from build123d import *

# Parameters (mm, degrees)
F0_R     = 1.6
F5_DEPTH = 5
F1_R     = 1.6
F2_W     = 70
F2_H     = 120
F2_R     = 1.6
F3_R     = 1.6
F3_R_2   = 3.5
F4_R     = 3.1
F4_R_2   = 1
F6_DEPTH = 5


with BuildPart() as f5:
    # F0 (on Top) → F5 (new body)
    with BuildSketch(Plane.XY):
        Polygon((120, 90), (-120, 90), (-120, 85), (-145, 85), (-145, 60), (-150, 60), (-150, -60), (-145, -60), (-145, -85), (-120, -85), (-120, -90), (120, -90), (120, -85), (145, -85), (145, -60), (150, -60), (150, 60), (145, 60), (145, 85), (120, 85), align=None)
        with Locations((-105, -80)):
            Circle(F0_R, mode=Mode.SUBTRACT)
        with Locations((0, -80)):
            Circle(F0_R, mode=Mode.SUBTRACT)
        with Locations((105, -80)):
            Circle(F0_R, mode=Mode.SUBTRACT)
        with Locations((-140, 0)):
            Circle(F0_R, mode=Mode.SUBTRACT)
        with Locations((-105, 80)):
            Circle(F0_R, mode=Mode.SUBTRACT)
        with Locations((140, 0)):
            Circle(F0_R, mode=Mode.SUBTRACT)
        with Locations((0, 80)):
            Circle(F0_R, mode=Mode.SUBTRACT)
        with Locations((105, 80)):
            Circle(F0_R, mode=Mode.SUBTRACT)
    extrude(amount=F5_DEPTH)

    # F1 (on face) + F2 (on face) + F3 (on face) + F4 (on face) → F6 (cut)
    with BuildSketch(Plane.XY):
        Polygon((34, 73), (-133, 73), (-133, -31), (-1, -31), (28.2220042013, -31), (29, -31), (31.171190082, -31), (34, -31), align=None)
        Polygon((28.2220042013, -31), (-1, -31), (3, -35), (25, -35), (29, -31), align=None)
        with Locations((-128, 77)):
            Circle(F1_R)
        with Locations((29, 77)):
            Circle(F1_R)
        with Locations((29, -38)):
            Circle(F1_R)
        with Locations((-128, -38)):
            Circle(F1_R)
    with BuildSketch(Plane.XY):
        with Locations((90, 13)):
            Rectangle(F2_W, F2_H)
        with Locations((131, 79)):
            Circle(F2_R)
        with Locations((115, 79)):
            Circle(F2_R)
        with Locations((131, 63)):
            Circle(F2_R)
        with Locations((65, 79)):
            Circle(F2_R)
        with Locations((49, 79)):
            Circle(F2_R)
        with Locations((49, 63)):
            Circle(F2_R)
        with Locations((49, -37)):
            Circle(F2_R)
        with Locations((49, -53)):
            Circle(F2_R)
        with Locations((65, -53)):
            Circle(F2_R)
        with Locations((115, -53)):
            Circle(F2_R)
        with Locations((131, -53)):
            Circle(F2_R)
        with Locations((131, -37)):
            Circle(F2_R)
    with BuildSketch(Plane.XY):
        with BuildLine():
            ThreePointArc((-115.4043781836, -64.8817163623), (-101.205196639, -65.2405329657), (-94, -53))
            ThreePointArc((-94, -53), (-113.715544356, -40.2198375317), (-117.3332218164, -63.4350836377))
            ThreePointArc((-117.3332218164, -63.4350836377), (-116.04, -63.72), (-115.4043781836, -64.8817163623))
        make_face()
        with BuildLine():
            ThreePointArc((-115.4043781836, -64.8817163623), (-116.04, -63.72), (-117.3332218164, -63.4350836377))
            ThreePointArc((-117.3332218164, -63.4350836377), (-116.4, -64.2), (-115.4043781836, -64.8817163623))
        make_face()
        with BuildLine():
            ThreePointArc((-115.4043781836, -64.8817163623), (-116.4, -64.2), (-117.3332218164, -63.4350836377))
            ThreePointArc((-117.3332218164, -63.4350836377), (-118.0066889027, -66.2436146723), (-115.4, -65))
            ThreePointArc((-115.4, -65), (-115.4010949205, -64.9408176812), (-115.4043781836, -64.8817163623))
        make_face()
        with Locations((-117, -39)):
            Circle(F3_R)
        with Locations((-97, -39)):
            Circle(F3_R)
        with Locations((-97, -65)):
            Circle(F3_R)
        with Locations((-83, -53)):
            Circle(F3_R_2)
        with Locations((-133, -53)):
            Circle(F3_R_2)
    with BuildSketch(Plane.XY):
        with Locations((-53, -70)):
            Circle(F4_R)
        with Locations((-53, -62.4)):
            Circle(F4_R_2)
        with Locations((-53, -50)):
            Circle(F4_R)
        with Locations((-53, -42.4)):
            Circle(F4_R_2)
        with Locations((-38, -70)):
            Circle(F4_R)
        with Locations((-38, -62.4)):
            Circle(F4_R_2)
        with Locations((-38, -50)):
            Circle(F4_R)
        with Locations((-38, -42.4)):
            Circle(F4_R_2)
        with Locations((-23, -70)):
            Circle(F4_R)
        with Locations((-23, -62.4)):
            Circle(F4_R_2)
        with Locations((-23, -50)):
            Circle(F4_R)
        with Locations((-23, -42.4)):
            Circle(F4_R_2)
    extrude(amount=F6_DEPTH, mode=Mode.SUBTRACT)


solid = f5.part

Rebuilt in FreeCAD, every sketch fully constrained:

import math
import FreeCAD as App
import Part
import Sketcher
Q = App.Units.Quantity


def add_polygon(sketch, points):
    """Adds a closed chain of lines whose ends are joined by coincident constraints."""
    first, n = sketch.GeometryCount, len(points)
    for a, b in zip(points, points[1:] + points[:1]):
        sketch.addGeometry(Part.LineSegment(App.Vector(*a, 0), App.Vector(*b, 0)), False)
    for i in range(n):
        sketch.addConstraint(Sketcher.Constraint("Coincident", first + i, 2, first + (i + 1) % n, 1))

doc = App.newDocument("Part")
body = doc.addObject("PartDesign::Body", "Body")

sketch1 = body.newObject("Sketcher::SketchObject", "Sketch")
sketch1.AttachmentSupport = (doc.getObject("XY_Plane"), [""])
sketch1.MapMode = "FlatFace"
add_polygon(sketch1, [(120, 90), (-120, 90), (-120, 85), (-145, 85), (-145, 60), (-150, 60), (-150, -60), (-145, -60), (-145, -85), (-120, -85), (-120, -90), (120, -90), (120, -85), (145, -85), (145, -60), (150, -60), (150, 60), (145, 60), (145, 85), (120, 85)])
sketch1.addGeometry(Part.Circle(App.Vector(-105, -80, 0), App.Vector(0, 0, 1), 1.6), False)
sketch1.addGeometry(Part.Circle(App.Vector(0, -80, 0), App.Vector(0, 0, 1), 1.6), False)
sketch1.addGeometry(Part.Circle(App.Vector(105, -80, 0), App.Vector(0, 0, 1), 1.6), False)
sketch1.addGeometry(Part.Circle(App.Vector(-140, 0, 0), App.Vector(0, 0, 1), 1.6), False)
sketch1.addGeometry(Part.Circle(App.Vector(-105, 80, 0), App.Vector(0, 0, 1), 1.6), False)
sketch1.addGeometry(Part.Circle(App.Vector(140, 0, 0), App.Vector(0, 0, 1), 1.6), False)
sketch1.addGeometry(Part.Circle(App.Vector(0, 80, 0), App.Vector(0, 0, 1), 1.6), False)
sketch1.addGeometry(Part.Circle(App.Vector(105, 80, 0), App.Vector(0, 0, 1), 1.6), False)
sketch1.addConstraint([
    Sketcher.Constraint("Horizontal", 0),
    Sketcher.Constraint("Vertical", 1),
    Sketcher.Constraint("Horizontal", 2),
    Sketcher.Constraint("Vertical", 3),
    Sketcher.Constraint("Horizontal", 4),
    Sketcher.Constraint("Vertical", 5),
    Sketcher.Constraint("Horizontal", 6),
    Sketcher.Constraint("Vertical", 7),
    Sketcher.Constraint("Horizontal", 8),
    Sketcher.Constraint("Vertical", 9),
    Sketcher.Constraint("Horizontal", 10),
    Sketcher.Constraint("Vertical", 11),
    Sketcher.Constraint("Horizontal", 12),
    Sketcher.Constraint("Vertical", 13),
    Sketcher.Constraint("Horizontal", 14),
    Sketcher.Constraint("Vertical", 15),
    Sketcher.Constraint("Horizontal", 16),
    Sketcher.Constraint("Vertical", 17),
    Sketcher.Constraint("Horizontal", 18),
    Sketcher.Constraint("Vertical", 19),
    Sketcher.Constraint("Equal", 20, 21),
    Sketcher.Constraint("Equal", 21, 22),
    Sketcher.Constraint("Equal", 22, 23),
    Sketcher.Constraint("Equal", 23, 24),
    Sketcher.Constraint("Equal", 24, 25),
    Sketcher.Constraint("Equal", 25, 26),
    Sketcher.Constraint("Equal", 26, 27),
    Sketcher.Constraint("Symmetric", 22, 3, 24, 3, -1, 1),
    Sketcher.Constraint("Symmetric", 23, 3, 25, 3, -1, 1),
    Sketcher.Constraint("Symmetric", 21, 3, 26, 3, -1, 1),
    Sketcher.Constraint("Symmetric", 20, 3, 27, 3, -1, 1),
    Sketcher.Constraint("Symmetric", 0, 2, 10, 2, -1, 1),
    Sketcher.Constraint("Symmetric", 2, 2, 12, 2, -1, 1),
    Sketcher.Constraint("Symmetric", 4, 2, 14, 2, -1, 1),
    Sketcher.Constraint("Symmetric", 6, 2, 16, 2, -1, 1),
    Sketcher.Constraint("Symmetric", 8, 2, 18, 2, -1, 1),
    Sketcher.Constraint("Symmetric", 20, 3, 22, 3, -2),
    Sketcher.Constraint("Symmetric", 8, 2, 11, 2, -2),
    Sketcher.Constraint("Symmetric", 6, 2, 13, 2, -2),
    Sketcher.Constraint("PointOnObject", 21, 3, -2),
    Sketcher.Constraint("PointOnObject", 23, 3, -1),
    Sketcher.Constraint("Horizontal", 20, 3, 21, 3),
    Sketcher.Constraint("Equal", 16, 1),
    Sketcher.Constraint("Equal", 18, 3),
    Sketcher.Constraint("Diameter", 20, Q("3.2 mm")),
    Sketcher.Constraint("DistanceX", 0, 2, 0, 1, Q("240 mm")),
    Sketcher.Constraint("DistanceX", 2, 2, 2, 1, Q("25 mm")),
    Sketcher.Constraint("DistanceX", 4, 2, 4, 1, Q("5 mm")),
    Sketcher.Constraint("DistanceY", 5, 2, 5, 1, Q("120 mm")),
    Sketcher.Constraint("DistanceX", 20, 3, -1, 1, Q("105 mm")),
    Sketcher.Constraint("DistanceY", 20, 3, -1, 1, Q("80 mm")),
    Sketcher.Constraint("DistanceX", 23, 3, -1, 1, Q("140 mm")),
])
pad1 = body.newObject("PartDesign::Pad", "Pad")
pad1.Profile = sketch1
pad1.Length = 5

sketch2 = body.newObject("Sketcher::SketchObject", "Sketch001")
sketch2.AttachmentSupport = (doc.getObject("XY_Plane"), [""])
sketch2.MapMode = "FlatFace"
add_polygon(sketch2, [(34, 73), (-133, 73), (-133, -31), (-1, -31), (3, -35), (25, -35), (29, -31), (34, -31)])
sketch2.addGeometry(Part.Circle(App.Vector(-128, 77, 0), App.Vector(0, 0, 1), 1.6), False)
sketch2.addGeometry(Part.Circle(App.Vector(29, 77, 0), App.Vector(0, 0, 1), 1.6), False)
sketch2.addGeometry(Part.Circle(App.Vector(29, -38, 0), App.Vector(0, 0, 1), 1.6), False)
sketch2.addGeometry(Part.Circle(App.Vector(-128, -38, 0), App.Vector(0, 0, 1), 1.6), False)
add_polygon(sketch2, [(55, 73), (55, -47), (125, -47), (125, 73)])
sketch2.addGeometry(Part.Circle(App.Vector(131, 79, 0), App.Vector(0, 0, 1), 1.6), False)
sketch2.addGeometry(Part.Circle(App.Vector(115, 79, 0), App.Vector(0, 0, 1), 1.6), False)
sketch2.addGeometry(Part.Circle(App.Vector(131, 63, 0), App.Vector(0, 0, 1), 1.6), False)
sketch2.addGeometry(Part.Circle(App.Vector(65, 79, 0), App.Vector(0, 0, 1), 1.6), False)
sketch2.addGeometry(Part.Circle(App.Vector(49, 79, 0), App.Vector(0, 0, 1), 1.6), False)
sketch2.addGeometry(Part.Circle(App.Vector(49, 63, 0), App.Vector(0, 0, 1), 1.6), False)
sketch2.addGeometry(Part.Circle(App.Vector(49, -37, 0), App.Vector(0, 0, 1), 1.6), False)
sketch2.addGeometry(Part.Circle(App.Vector(49, -53, 0), App.Vector(0, 0, 1), 1.6), False)
sketch2.addGeometry(Part.Circle(App.Vector(65, -53, 0), App.Vector(0, 0, 1), 1.6), False)
sketch2.addGeometry(Part.Circle(App.Vector(115, -53, 0), App.Vector(0, 0, 1), 1.6), False)
sketch2.addGeometry(Part.Circle(App.Vector(131, -53, 0), App.Vector(0, 0, 1), 1.6), False)
sketch2.addGeometry(Part.Circle(App.Vector(131, -37, 0), App.Vector(0, 0, 1), 1.6), False)
sketch2.addGeometry(Part.ArcOfCircle(Part.Circle(App.Vector(-108, -53, 0), App.Vector(0, 0, 1), 14), math.radians(0), math.radians(228)), False)
sketch2.addGeometry(Part.ArcOfCircle(Part.Circle(App.Vector(-117, -65, 0), App.Vector(0, 0, 1), 1.6), math.radians(102), math.radians(360)), False)
sketch2.addGeometry(Part.ArcOfCircle(Part.Circle(App.Vector(-117, -65, 0), App.Vector(0, 0, 1), 1.6), math.radians(0), math.radians(4.24)), False)
sketch2.addGeometry(Part.ArcOfCircle(Part.Circle(App.Vector(-108, -53, 0), App.Vector(0, 0, 1), 14), math.radians(-122), math.radians(0)), False)
sketch2.addGeometry(Part.Circle(App.Vector(-117, -39, 0), App.Vector(0, 0, 1), 1.6), False)
sketch2.addGeometry(Part.Circle(App.Vector(-97, -39, 0), App.Vector(0, 0, 1), 1.6), False)
sketch2.addGeometry(Part.Circle(App.Vector(-97, -65, 0), App.Vector(0, 0, 1), 1.6), False)
sketch2.addGeometry(Part.Circle(App.Vector(-83, -53, 0), App.Vector(0, 0, 1), 3.5), False)
sketch2.addGeometry(Part.Circle(App.Vector(-133, -53, 0), App.Vector(0, 0, 1), 3.5), False)
sketch2.addGeometry(Part.Circle(App.Vector(-53, -70, 0), App.Vector(0, 0, 1), 3.1), False)
sketch2.addGeometry(Part.Circle(App.Vector(-53, -62.4, 0), App.Vector(0, 0, 1), 1), False)
sketch2.addGeometry(Part.Circle(App.Vector(-53, -50, 0), App.Vector(0, 0, 1), 3.1), False)
sketch2.addGeometry(Part.Circle(App.Vector(-53, -42.4, 0), App.Vector(0, 0, 1), 1), False)
sketch2.addGeometry(Part.Circle(App.Vector(-38, -70, 0), App.Vector(0, 0, 1), 3.1), False)
sketch2.addGeometry(Part.Circle(App.Vector(-38, -62.4, 0), App.Vector(0, 0, 1), 1), False)
sketch2.addGeometry(Part.Circle(App.Vector(-38, -50, 0), App.Vector(0, 0, 1), 3.1), False)
sketch2.addGeometry(Part.Circle(App.Vector(-38, -42.4, 0), App.Vector(0, 0, 1), 1), False)
sketch2.addGeometry(Part.Circle(App.Vector(-23, -70, 0), App.Vector(0, 0, 1), 3.1), False)
sketch2.addGeometry(Part.Circle(App.Vector(-23, -62.4, 0), App.Vector(0, 0, 1), 1), False)
sketch2.addGeometry(Part.Circle(App.Vector(-23, -50, 0), App.Vector(0, 0, 1), 3.1), False)
sketch2.addGeometry(Part.Circle(App.Vector(-23, -42.4, 0), App.Vector(0, 0, 1), 1), False)
sketch2.addConstraint([
    Sketcher.Constraint("Coincident", 28, 2, 29, 1),
    Sketcher.Constraint("Tangent", 29, 2, 30, 1),
    Sketcher.Constraint("Coincident", 30, 2, 31, 1),
    Sketcher.Constraint("Tangent", 31, 2, 28, 1),
    Sketcher.Constraint("Horizontal", 0),
    Sketcher.Constraint("Vertical", 1),
    Sketcher.Constraint("Horizontal", 2),
    Sketcher.Constraint("Horizontal", 4),
    Sketcher.Constraint("Horizontal", 6),
    Sketcher.Constraint("Vertical", 7),
    Sketcher.Constraint("Vertical", 12),
    Sketcher.Constraint("Horizontal", 13),
    Sketcher.Constraint("Vertical", 14),
    Sketcher.Constraint("Horizontal", 15),
    Sketcher.Constraint("Equal", 8, 9),
    Sketcher.Constraint("Equal", 9, 10),
    Sketcher.Constraint("Equal", 10, 11),
    Sketcher.Constraint("Equal", 11, 16),
    Sketcher.Constraint("Equal", 16, 17),
    Sketcher.Constraint("Equal", 17, 18),
    Sketcher.Constraint("Equal", 18, 19),
    Sketcher.Constraint("Equal", 19, 20),
    Sketcher.Constraint("Equal", 20, 21),
    Sketcher.Constraint("Equal", 21, 22),
    Sketcher.Constraint("Equal", 22, 23),
    Sketcher.Constraint("Equal", 23, 24),
    Sketcher.Constraint("Equal", 24, 25),
    Sketcher.Constraint("Equal", 25, 26),
    Sketcher.Constraint("Equal", 26, 27),
    Sketcher.Constraint("Equal", 27, 29),
    Sketcher.Constraint("Equal", 29, 30),
    Sketcher.Constraint("Equal", 28, 31),
    Sketcher.Constraint("Equal", 30, 32),
    Sketcher.Constraint("Equal", 32, 33),
    Sketcher.Constraint("Equal", 33, 34),
    Sketcher.Constraint("Equal", 35, 36),
    Sketcher.Constraint("Equal", 37, 39),
    Sketcher.Constraint("Equal", 38, 40),
    Sketcher.Constraint("Equal", 39, 41),
    Sketcher.Constraint("Equal", 40, 42),
    Sketcher.Constraint("Equal", 41, 43),
    Sketcher.Constraint("Equal", 42, 44),
    Sketcher.Constraint("Equal", 43, 45),
    Sketcher.Constraint("Equal", 44, 46),
    Sketcher.Constraint("Equal", 45, 47),
    Sketcher.Constraint("Equal", 46, 48),
    Sketcher.Constraint("Perpendicular", 3, 5),
    Sketcher.Constraint("Horizontal", 8, 3, 9, 3),
    Sketcher.Constraint("Horizontal", 10, 3, 11, 3),
    Sketcher.Constraint("Horizontal", 16, 3, 17, 3),
    Sketcher.Constraint("Horizontal", 17, 3, 19, 3),
    Sketcher.Constraint("Horizontal", 19, 3, 20, 3),
    Sketcher.Constraint("Horizontal", 18, 3, 21, 3),
    Sketcher.Constraint("Horizontal", 23, 3, 24, 3),
    Sketcher.Constraint("Horizontal", 24, 3, 25, 3),
    Sketcher.Constraint("Horizontal", 25, 3, 26, 3),
    Sketcher.Constraint("Horizontal", 22, 3, 27, 3),
    Sketcher.Constraint("Horizontal", 26, 3, 28, 3),
    Sketcher.Constraint("Horizontal", 32, 3, 33, 3),
    Sketcher.Constraint("Horizontal", 30, 3, 34, 3),
    Sketcher.Constraint("Horizontal", 31, 3, 35, 3),
    Sketcher.Constraint("Horizontal", 35, 3, 36, 3),
    Sketcher.Constraint("Horizontal", 37, 3, 41, 3),
    Sketcher.Constraint("Horizontal", 38, 3, 42, 3),
    Sketcher.Constraint("Horizontal", 39, 3, 43, 3),
    Sketcher.Constraint("Horizontal", 40, 3, 44, 3),
    Sketcher.Constraint("Horizontal", 41, 3, 45, 3),
    Sketcher.Constraint("Horizontal", 42, 3, 46, 3),
    Sketcher.Constraint("Horizontal", 43, 3, 47, 3),
    Sketcher.Constraint("Horizontal", 44, 3, 48, 3),
    Sketcher.Constraint("Horizontal", 2, 2, 5, 2),
    Sketcher.Constraint("Horizontal", 7, 2, 14, 2),
    Sketcher.Constraint("Horizontal", 34, 3, 29, 2),
    Sketcher.Constraint("Horizontal", 36, 3, 31, 2),
    Sketcher.Constraint("Vertical", 9, 3, 10, 3),
    Sketcher.Constraint("Vertical", 8, 3, 11, 3),
    Sketcher.Constraint("Vertical", 16, 3, 18, 3),
    Sketcher.Constraint("Vertical", 20, 3, 21, 3),
    Sketcher.Constraint("Vertical", 21, 3, 22, 3),
    Sketcher.Constraint("Vertical", 22, 3, 23, 3),
    Sketcher.Constraint("Vertical", 19, 3, 24, 3),
    Sketcher.Constraint("Vertical", 17, 3, 25, 3),
    Sketcher.Constraint("Vertical", 18, 3, 26, 3),
    Sketcher.Constraint("Vertical", 26, 3, 27, 3),
    Sketcher.Constraint("Vertical", 30, 3, 32, 3),
    Sketcher.Constraint("Vertical", 33, 3, 34, 3),
    Sketcher.Constraint("Vertical", 37, 3, 38, 3),
    Sketcher.Constraint("Vertical", 38, 3, 39, 3),
    Sketcher.Constraint("Vertical", 39, 3, 40, 3),
    Sketcher.Constraint("Vertical", 41, 3, 42, 3),
    Sketcher.Constraint("Vertical", 42, 3, 43, 3),
    Sketcher.Constraint("Vertical", 43, 3, 44, 3),
    Sketcher.Constraint("Vertical", 45, 3, 46, 3),
    Sketcher.Constraint("Vertical", 46, 3, 47, 3),
    Sketcher.Constraint("Vertical", 47, 3, 48, 3),
    Sketcher.Constraint("Vertical", 36, 3, 0, 2),
    Sketcher.Constraint("Vertical", 10, 3, 5, 2),
    Sketcher.Constraint("Equal", 3, 5),
    Sketcher.Constraint("Diameter", 35, Q("7 mm")),
    Sketcher.Constraint("Diameter", 38, Q("2 mm")),
    Sketcher.Constraint("Radius", 28, Q("14 mm")),
    Sketcher.Constraint("Diameter", 8, Q("3.2 mm")),
    Sketcher.Constraint("Diameter", 37, Q("6.2 mm")),
    Sketcher.Constraint("DistanceX", 0, 2, 0, 1, Q("167 mm")),
    Sketcher.Constraint("DistanceX", 2, 1, 2, 2, Q("132 mm")),
    Sketcher.Constraint("DistanceX", 4, 1, 4, 2, Q("22 mm")),
    Sketcher.Constraint("DistanceX", 6, 1, 6, 2, Q("5 mm")),
    Sketcher.Constraint("DistanceX", 13, 1, 13, 2, Q("70 mm")),
    Sketcher.Constraint("DistanceY", 1, 2, 1, 1, Q("104 mm")),
    Sketcher.Constraint("DistanceY", 12, 2, 12, 1, Q("120 mm")),
    Sketcher.Constraint("DistanceX", 8, 3, -1, 1, Q("128 mm")),
    Sketcher.Constraint("DistanceY", -1, 1, 8, 3, Q("77 mm")),
    Sketcher.Constraint("DistanceX", -1, 1, 9, 3, Q("29 mm")),
    Sketcher.Constraint("DistanceY", 10, 3, -1, 1, Q("38 mm")),
    Sketcher.Constraint("DistanceX", -1, 1, 16, 3, Q("131 mm")),
    Sketcher.Constraint("DistanceY", -1, 1, 16, 3, Q("79 mm")),
    Sketcher.Constraint("DistanceX", -1, 1, 17, 3, Q("115 mm")),
    Sketcher.Constraint("DistanceY", -1, 1, 18, 3, Q("63 mm")),
    Sketcher.Constraint("DistanceX", -1, 1, 19, 3, Q("65 mm")),
    Sketcher.Constraint("DistanceX", -1, 1, 20, 3, Q("49 mm")),
    Sketcher.Constraint("DistanceY", 22, 3, -1, 1, Q("37 mm")),
    Sketcher.Constraint("DistanceY", 23, 3, -1, 1, Q("53 mm")),
    Sketcher.Constraint("DistanceX", 28, 3, -1, 1, Q("108 mm")),
    Sketcher.Constraint("DistanceX", 29, 3, -1, 1, Q("117 mm")),
    Sketcher.Constraint("DistanceY", 29, 3, -1, 1, Q("65 mm")),
    Sketcher.Constraint("DistanceY", 32, 3, -1, 1, Q("39 mm")),
    Sketcher.Constraint("DistanceX", 33, 3, -1, 1, Q("97 mm")),
    Sketcher.Constraint("DistanceX", 35, 3, -1, 1, Q("83 mm")),
    Sketcher.Constraint("DistanceX", 37, 3, -1, 1, Q("53 mm")),
    Sketcher.Constraint("DistanceY", 37, 3, -1, 1, Q("70 mm")),
    Sketcher.Constraint("DistanceY", 39, 3, -1, 1, Q("50 mm")),
    Sketcher.Constraint("DistanceX", 41, 3, -1, 1, Q("38 mm")),
    Sketcher.Constraint("DistanceX", 45, 3, -1, 1, Q("23 mm")),
    Sketcher.Constraint("DistanceY", -1, 1, 0, 2, Q("73 mm")),
    Sketcher.Constraint("DistanceX", -1, 1, 12, 2, Q("55 mm")),
    Sketcher.Constraint("DistanceY", 38, 3, 40, 3, Q("20 mm")),
    Sketcher.Constraint("DistanceY", 38, 3, -1, 1, Q("62.4 mm")),
])
pocket1 = body.newObject("PartDesign::Pocket", "Pocket")
pocket1.Profile = sketch2
pocket1.Length = 5
pocket1.Reversed = True

doc.recompute()
